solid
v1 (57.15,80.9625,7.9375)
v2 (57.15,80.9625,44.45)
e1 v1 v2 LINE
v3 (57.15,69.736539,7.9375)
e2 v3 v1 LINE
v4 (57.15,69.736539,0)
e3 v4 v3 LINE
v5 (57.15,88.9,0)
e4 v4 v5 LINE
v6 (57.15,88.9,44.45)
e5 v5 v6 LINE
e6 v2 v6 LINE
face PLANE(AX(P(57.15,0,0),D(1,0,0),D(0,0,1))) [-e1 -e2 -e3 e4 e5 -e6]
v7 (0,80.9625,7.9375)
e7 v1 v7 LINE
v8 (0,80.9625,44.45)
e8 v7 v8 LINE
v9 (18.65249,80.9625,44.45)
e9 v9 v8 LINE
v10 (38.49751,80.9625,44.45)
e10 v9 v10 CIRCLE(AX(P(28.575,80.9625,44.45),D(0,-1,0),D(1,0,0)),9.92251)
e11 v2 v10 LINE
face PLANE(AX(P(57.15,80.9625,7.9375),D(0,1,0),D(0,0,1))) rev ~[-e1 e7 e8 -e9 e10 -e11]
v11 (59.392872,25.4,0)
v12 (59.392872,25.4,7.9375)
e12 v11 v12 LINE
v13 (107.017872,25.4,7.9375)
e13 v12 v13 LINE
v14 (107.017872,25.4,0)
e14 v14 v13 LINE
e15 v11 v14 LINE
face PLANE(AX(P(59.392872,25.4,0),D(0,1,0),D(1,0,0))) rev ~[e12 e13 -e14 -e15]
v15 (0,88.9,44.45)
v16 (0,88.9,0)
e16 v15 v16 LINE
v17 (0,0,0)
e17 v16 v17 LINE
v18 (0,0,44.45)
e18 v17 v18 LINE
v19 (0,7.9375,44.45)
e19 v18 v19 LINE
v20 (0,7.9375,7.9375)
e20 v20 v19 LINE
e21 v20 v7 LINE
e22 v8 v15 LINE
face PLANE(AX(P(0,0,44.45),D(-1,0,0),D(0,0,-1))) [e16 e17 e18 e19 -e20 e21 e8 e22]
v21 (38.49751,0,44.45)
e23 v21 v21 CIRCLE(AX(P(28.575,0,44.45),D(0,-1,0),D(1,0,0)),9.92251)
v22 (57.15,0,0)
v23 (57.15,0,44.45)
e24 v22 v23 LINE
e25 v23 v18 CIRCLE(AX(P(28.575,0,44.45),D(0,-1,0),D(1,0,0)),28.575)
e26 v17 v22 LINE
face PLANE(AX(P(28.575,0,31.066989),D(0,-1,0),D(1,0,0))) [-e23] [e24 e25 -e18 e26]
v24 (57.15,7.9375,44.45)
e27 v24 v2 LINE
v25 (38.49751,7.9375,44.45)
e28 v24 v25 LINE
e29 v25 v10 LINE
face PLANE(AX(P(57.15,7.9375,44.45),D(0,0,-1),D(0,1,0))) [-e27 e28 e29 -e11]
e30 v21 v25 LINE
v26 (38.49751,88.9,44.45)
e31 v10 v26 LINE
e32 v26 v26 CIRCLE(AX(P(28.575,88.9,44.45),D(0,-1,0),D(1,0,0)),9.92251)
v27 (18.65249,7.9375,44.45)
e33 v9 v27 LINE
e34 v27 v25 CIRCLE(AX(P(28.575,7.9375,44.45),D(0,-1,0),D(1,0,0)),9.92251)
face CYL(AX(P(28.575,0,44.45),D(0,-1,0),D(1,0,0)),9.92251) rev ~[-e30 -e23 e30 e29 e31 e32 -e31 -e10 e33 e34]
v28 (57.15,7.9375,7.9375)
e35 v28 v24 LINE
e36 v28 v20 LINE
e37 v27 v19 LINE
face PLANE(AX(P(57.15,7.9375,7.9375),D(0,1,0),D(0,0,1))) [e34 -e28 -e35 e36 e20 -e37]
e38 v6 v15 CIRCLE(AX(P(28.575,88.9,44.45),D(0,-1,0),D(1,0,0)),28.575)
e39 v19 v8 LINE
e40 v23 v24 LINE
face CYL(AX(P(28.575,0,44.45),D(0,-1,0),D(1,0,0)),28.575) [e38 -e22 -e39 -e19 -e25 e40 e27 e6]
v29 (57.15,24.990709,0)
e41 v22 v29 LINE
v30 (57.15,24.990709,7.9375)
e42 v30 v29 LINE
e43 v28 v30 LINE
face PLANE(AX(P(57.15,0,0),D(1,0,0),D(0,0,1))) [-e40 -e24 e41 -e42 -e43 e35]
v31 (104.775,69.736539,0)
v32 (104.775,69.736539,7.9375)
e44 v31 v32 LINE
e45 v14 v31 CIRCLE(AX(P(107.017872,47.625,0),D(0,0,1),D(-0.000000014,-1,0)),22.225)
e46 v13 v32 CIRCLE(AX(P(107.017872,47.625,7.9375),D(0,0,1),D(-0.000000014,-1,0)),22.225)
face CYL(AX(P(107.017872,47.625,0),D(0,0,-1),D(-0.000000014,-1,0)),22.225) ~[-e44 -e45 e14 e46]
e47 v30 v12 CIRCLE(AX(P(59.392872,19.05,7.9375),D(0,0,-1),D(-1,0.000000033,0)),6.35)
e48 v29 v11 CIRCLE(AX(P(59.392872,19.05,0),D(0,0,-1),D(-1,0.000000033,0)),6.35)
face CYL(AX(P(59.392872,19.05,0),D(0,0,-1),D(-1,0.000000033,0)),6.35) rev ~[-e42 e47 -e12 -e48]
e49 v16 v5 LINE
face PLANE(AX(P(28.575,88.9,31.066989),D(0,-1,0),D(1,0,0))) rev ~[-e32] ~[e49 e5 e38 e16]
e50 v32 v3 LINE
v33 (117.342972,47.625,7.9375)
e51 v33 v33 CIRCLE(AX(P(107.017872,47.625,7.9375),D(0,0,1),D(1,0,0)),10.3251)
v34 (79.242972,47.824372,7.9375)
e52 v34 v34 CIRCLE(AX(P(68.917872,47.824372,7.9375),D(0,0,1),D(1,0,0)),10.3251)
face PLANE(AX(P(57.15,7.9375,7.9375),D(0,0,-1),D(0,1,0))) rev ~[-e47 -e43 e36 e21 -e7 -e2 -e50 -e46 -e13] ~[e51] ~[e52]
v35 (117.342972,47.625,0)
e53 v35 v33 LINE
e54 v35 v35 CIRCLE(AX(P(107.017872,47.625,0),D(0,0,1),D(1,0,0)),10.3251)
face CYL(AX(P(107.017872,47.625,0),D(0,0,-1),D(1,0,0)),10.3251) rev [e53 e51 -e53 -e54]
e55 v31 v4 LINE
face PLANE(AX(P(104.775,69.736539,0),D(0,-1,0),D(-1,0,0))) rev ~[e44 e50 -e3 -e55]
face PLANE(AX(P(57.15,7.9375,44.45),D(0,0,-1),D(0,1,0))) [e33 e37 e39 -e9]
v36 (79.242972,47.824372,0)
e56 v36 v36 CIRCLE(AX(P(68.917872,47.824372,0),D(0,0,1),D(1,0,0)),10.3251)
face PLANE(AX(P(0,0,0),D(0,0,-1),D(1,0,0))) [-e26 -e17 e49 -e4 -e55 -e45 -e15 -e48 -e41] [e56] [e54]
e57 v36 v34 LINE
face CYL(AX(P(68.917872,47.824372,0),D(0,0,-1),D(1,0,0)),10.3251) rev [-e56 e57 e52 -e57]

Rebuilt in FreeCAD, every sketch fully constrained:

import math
import FreeCAD as App
import Part
import Sketcher
from FreeCAD import Vector
Q = App.Units.Quantity


def add_polygon(sketch, points):
    """Adds a closed chain of lines whose ends are joined by coincident constraints."""
    first, n = sketch.GeometryCount, len(points)
    for a, b in zip(points, points[1:] + points[:1]):
        sketch.addGeometry(Part.LineSegment(App.Vector(*a, 0), App.Vector(*b, 0)), False)
    for i in range(n):
        sketch.addConstraint(Sketcher.Constraint("Coincident", first + i, 2, first + (i + 1) % n, 1))

doc = App.newDocument("Part")
body = doc.addObject("PartDesign::Body", "Body")

# Sketch on XY plane
sketch1 = doc.addObject("Sketcher::SketchObject", "Sketch")
body.addObject(sketch1)
sketch1.AttachmentSupport = (doc.XY_Plane, [""])
sketch1.MapMode = "FlatFace"
sketch1.addGeometry(Part.LineSegment(Vector(0, 0, 0), Vector(53, 0, 0)), False)
sketch1.addGeometry(Part.LineSegment(Vector(53, 0, 0), Vector(53, 19, 0)), False)
sketch1.addGeometry(Part.ArcOfCircle(Part.Circle(Vector(59, 19, 0), Vector(0, 0, 1), 6), math.radians(90), math.radians(180)), False)
sketch1.addGeometry(Part.LineSegment(Vector(59, 25, 0), Vector(107, 25, 0)), False)
sketch1.addGeometry(Part.ArcOfCircle(Part.Circle(Vector(107, 48, 0), Vector(0, 0, 1), 22), math.radians(-90), math.radians(96)), False)
sketch1.addGeometry(Part.LineSegment(Vector(105, 70, 0), Vector(57, 70, 0)), False)
sketch1.addGeometry(Part.ArcOfCircle(Part.Circle(Vector(57, 76, 0), Vector(0, 0, 1), 6), math.radians(-180), math.radians(-90)), False)
sketch1.addGeometry(Part.LineSegment(Vector(51, 76, 0), Vector(51, 89, 0)), False)
sketch1.addGeometry(Part.LineSegment(Vector(51, 89, 0), Vector(0, 89, 0)), False)
sketch1.addGeometry(Part.LineSegment(Vector(0, 89, 0), Vector(0, 0, 0)), False)
sketch1.addGeometry(Part.Circle(Vector(107, 48, 0), Vector(0, 0, 1), 10), False)
sketch1.addGeometry(Part.Circle(Vector(69, 48, 0), Vector(0, 0, 1), 10), False)
sketch1.addConstraint(Sketcher.Constraint("Coincident", 0, 2, 1, 1))
sketch1.addConstraint(Sketcher.Constraint("Tangent", 1, 2, 2, 2))
sketch1.addConstraint(Sketcher.Constraint("Tangent", 2, 1, 3, 1))
sketch1.addConstraint(Sketcher.Constraint("Tangent", 3, 2, 4, 1))
sketch1.addConstraint(Sketcher.Constraint("Coincident", 4, 2, 5, 1))
sketch1.addConstraint(Sketcher.Constraint("Tangent", 5, 2, 6, 2))
sketch1.addConstraint(Sketcher.Constraint("Tangent", 6, 1, 7, 1))
sketch1.addConstraint(Sketcher.Constraint("Coincident", 7, 2, 8, 1))
sketch1.addConstraint(Sketcher.Constraint("Coincident", 8, 2, 9, 1))
sketch1.addConstraint(Sketcher.Constraint("Coincident", 9, 2, 0, 1))
sketch1.addConstraint(Sketcher.Constraint("Horizontal", 0))
sketch1.addConstraint(Sketcher.Constraint("Vertical", 1))
sketch1.addConstraint(Sketcher.Constraint("Horizontal", 3))
sketch1.addConstraint(Sketcher.Constraint("Horizontal", 5))
sketch1.addConstraint(Sketcher.Constraint("Vertical", 7))
sketch1.addConstraint(Sketcher.Constraint("Horizontal", 8))
sketch1.addConstraint(Sketcher.Constraint("Vertical", 9))
sketch1.addConstraint(Sketcher.Constraint("Coincident", 9, 2, -1, 1))
sketch1.addConstraint(Sketcher.Constraint("Coincident", 10, 3, 4, 3))
sketch1.addConstraint(Sketcher.Constraint("Equal", 2, 6))
sketch1.addConstraint(Sketcher.Constraint("Equal", 10, 11))
sketch1.addConstraint(Sketcher.Constraint("Equal", 3, 5))
sketch1.addConstraint(Sketcher.Constraint("DistanceX", 8, 2, 8, 1, Q("2 in")))
sketch1.addConstraint(Sketcher.Constraint("Radius", 2, Q("0.25 in")))
sketch1.addConstraint(Sketcher.Constraint("Diameter", 10, Q("0.813 in")))
sketch1.addConstraint(Sketcher.Constraint("DistanceY", 9, 2, 9, 1, Q("3.5 in")))
sketch1.addConstraint(Sketcher.Constraint("DistanceY", -1, 1, 2, 1, Q("1 in")))
sketch1.addConstraint(Sketcher.Constraint("Radius", 4, Q("0.875 in")))
sketch1.addConstraint(Sketcher.Constraint("DistanceX", 11, 3, 10, 3, Q("1.5 in")))
sketch1.addConstraint(Sketcher.Constraint("DistanceX", 3, 1, 3, 2, Q("1.875 in")))
sketch1.addConstraint(Sketcher.Constraint("DistanceY", 7, 1, 7, 2, 12.813461))
sketch1.addConstraint(Sketcher.Constraint("DistanceY", -1, 1, 11, 3, 47.824372))
pad1 = doc.addObject("PartDesign::Pad", "Pad")
body.addObject(pad1)
pad1.Profile = sketch1
pad1.Length = Q("0.3125 in")

# Sketch on XZ plane
sketch2 = doc.addObject("Sketcher::SketchObject", "Sketch001")
body.addObject(sketch2)
sketch2.AttachmentSupport = (doc.XZ_Plane, [""])
sketch2.MapMode = "FlatFace"
sketch2.addGeometry(Part.LineSegment(Vector(0, 44, 0), Vector(0, 0, 0)), False)
sketch2.addGeometry(Part.LineSegment(Vector(0, 0, 0), Vector(57, 0, 0)), False)
sketch2.addGeometry(Part.LineSegment(Vector(57, 0, 0), Vector(57, 44, 0)), False)
sketch2.addGeometry(Part.ArcOfCircle(Part.Circle(Vector(29, 44, 0), Vector(0, 0, 1), 29), math.radians(0), math.radians(180)), False)
sketch2.addGeometry(Part.Circle(Vector(29, 44, 0), Vector(0, 0, 1), 10), False)
sketch2.addConstraint(Sketcher.Constraint("Coincident", 0, 2, 1, 1))
sketch2.addConstraint(Sketcher.Constraint("Coincident", 1, 2, 2, 1))
sketch2.addConstraint(Sketcher.Constraint("Tangent", 2, 2, 3, 1))
sketch2.addConstraint(Sketcher.Constraint("Tangent", 3, 2, 0, 1))
sketch2.addConstraint(Sketcher.Constraint("Vertical", 0))
sketch2.addConstraint(Sketcher.Constraint("Horizontal", 1))
sketch2.addConstraint(Sketcher.Constraint("Vertical", 2))
sketch2.addConstraint(Sketcher.Constraint("Coincident", 0, 2, -1, 1))
sketch2.addConstraint(Sketcher.Constraint("Coincident", 4, 3, 3, 3))
sketch2.addConstraint(Sketcher.Constraint("Radius", 3, Q("1.125 in")))
sketch2.addConstraint(Sketcher.Constraint("Diameter", 4, Q("0.7813 in")))
sketch2.addConstraint(Sketcher.Constraint("DistanceY", 0, 2, 0, 1, Q("1.75 in")))
pad2 = doc.addObject("PartDesign::Pad", "Pad001")
body.addObject(pad2)
pad2.Profile = sketch2
pad2.Length = Q("3.5 in")
pad2.Reversed = True

# Sketch on YZ plane
sketch3 = doc.addObject("Sketcher::SketchObject", "Sketch002")
body.addObject(sketch3)
sketch3.AttachmentSupport = (doc.YZ_Plane, [""])
sketch3.MapMode = "FlatFace"
sketch3.AttachmentOffset = App.Placement(Vector(0, 0, 2.25 * 25.4), App.Rotation())
add_polygon(sketch3, [(8, 44), (8, 8), (81, 8), (81, 44)])  # lines 0-3
sketch3.addConstraint(Sketcher.Constraint("Vertical", 0))
sketch3.addConstraint(Sketcher.Constraint("Horizontal", 1))
sketch3.addConstraint(Sketcher.Constraint("Vertical", 2))
sketch3.addConstraint(Sketcher.Constraint("Horizontal", 3))
sketch3.addConstraint(Sketcher.Constraint("DistanceX", 1, 1, 1, 2, Q("2.875 in")))
sketch3.addConstraint(Sketcher.Constraint("DistanceY", 0, 2, 0, 1, Q("1.4375 in")))
sketch3.addConstraint(Sketcher.Constraint("DistanceY", -1, 1, 2, 2, Q("1.75 in")))
sketch3.addConstraint(Sketcher.Constraint("DistanceX", -1, 1, 0, 2, Q("0.3125 in")))
pocket1 = doc.addObject("PartDesign::Pocket", "Pocket")
body.addObject(pocket1)
pocket1.Profile = sketch3
pocket1.Type = "ThroughAll"

doc.recompute()
